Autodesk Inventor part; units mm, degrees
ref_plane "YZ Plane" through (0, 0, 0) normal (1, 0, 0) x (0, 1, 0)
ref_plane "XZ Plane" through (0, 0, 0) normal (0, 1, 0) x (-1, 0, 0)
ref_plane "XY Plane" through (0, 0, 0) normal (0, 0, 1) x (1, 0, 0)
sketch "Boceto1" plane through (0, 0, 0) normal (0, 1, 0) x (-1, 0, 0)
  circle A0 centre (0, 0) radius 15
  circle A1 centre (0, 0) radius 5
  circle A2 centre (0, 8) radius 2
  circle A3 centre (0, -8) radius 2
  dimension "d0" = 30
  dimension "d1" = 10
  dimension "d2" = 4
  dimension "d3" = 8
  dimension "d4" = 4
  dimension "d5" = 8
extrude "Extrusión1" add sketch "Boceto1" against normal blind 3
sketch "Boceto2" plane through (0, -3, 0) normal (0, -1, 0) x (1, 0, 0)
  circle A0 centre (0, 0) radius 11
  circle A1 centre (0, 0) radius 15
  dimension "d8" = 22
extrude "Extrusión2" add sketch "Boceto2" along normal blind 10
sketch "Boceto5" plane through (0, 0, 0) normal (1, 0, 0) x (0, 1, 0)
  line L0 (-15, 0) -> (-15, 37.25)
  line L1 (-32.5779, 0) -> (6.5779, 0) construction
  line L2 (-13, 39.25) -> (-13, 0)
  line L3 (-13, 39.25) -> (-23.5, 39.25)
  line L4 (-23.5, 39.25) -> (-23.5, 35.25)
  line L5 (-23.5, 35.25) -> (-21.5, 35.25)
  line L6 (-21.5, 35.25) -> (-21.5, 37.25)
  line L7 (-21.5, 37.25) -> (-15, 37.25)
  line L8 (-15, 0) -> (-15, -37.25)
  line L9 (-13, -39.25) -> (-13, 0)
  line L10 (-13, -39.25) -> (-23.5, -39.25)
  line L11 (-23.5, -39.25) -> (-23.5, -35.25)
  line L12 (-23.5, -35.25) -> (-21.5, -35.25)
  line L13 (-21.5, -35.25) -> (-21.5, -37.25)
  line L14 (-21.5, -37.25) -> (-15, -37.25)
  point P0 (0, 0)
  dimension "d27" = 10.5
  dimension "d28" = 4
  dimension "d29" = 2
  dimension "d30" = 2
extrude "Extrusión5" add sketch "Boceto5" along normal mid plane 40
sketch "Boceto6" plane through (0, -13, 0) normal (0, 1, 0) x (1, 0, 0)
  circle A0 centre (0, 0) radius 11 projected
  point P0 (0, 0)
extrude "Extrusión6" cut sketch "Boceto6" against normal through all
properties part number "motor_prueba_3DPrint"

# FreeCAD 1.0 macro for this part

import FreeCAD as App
import Part
import Sketcher
Q = App.Units.Quantity


def add_polygon(sketch, points):
    """Adds a closed chain of lines whose ends are joined by coincident constraints."""
    first, n = sketch.GeometryCount, len(points)
    for a, b in zip(points, points[1:] + points[:1]):
        sketch.addGeometry(Part.LineSegment(App.Vector(*a, 0), App.Vector(*b, 0)), False)
    for i in range(n):
        sketch.addConstraint(Sketcher.Constraint("Coincident", first + i, 2, first + (i + 1) % n, 1))

doc = App.newDocument("Part")
body = doc.addObject("PartDesign::Body", "Body")

# Sketch on XZ plane
sketch1 = body.newObject("Sketcher::SketchObject", "Sketch")
sketch1.AttachmentSupport = (doc.getObject("XZ_Plane"), [""])
sketch1.MapMode = "FlatFace"
sketch1.addGeometry([
    Part.Circle(App.Vector(0, 0, 0), App.Vector(0, 0, 1), 15),
    Part.Circle(App.Vector(0, -8, 0), App.Vector(0, 0, 1), 2),
    Part.Circle(App.Vector(0, 0, 0), App.Vector(0, 0, 1), 5),
    Part.Circle(App.Vector(0, 8, 0), App.Vector(0, 0, 1), 2),
], False)
sketch1.addConstraint([
    Sketcher.Constraint("Coincident", 0, 3, -1, 1),
    Sketcher.Constraint("Coincident", 2, 3, -1, 1),
    Sketcher.Constraint("Equal", 1, 3),
    Sketcher.Constraint("Symmetric", 1, 3, 3, 3, -1, 1),
    Sketcher.Constraint("PointOnObject", 1, 3, -2),
    Sketcher.Constraint("Diameter", 0, Q("30 mm")),
    Sketcher.Constraint("Diameter", 1, Q("4 mm")),
    Sketcher.Constraint("Diameter", 2, Q("10 mm")),
    Sketcher.Constraint("DistanceY", 1, 3, -1, 1, Q("8 mm")),
])
pad1 = body.newObject("PartDesign::Pad", "Pad")
pad1.Profile = sketch1
pad1.Length = 3

# Sketch on XZ plane
sketch2 = body.newObject("Sketcher::SketchObject", "Sketch001")
sketch2.AttachmentSupport = (doc.getObject("XZ_Plane"), [""])
sketch2.MapMode = "FlatFace"
sketch2.AttachmentOffset = App.Placement(App.Vector(0, 0, 3), App.Rotation())
sketch2.addGeometry([
    Part.Circle(App.Vector(0, 0, 0), App.Vector(0, 0, 1), 15),
    Part.Circle(App.Vector(0, 0, 0), App.Vector(0, 0, 1), 11),
], False)
sketch2.addConstraint([
    Sketcher.Constraint("Coincident", 0, 3, -1, 1),
    Sketcher.Constraint("Coincident", 1, 3, -1, 1),
    Sketcher.Constraint("Diameter", 1, Q("22 mm")),
    Sketcher.Constraint("Diameter", 0, Q("30 mm")),
])
pad2 = body.newObject("PartDesign::Pad", "Pad001")
pad2.Profile = sketch2
pad2.Length = 10

# Sketch on YZ plane
sketch3 = body.newObject("Sketcher::SketchObject", "Sketch002")
sketch3.AttachmentSupport = (doc.getObject("YZ_Plane"), [""])
sketch3.MapMode = "FlatFace"
add_polygon(sketch3, [(-15, 37.2), (-15, -37.2), (-21.5, -37.2), (-21.5, -35.2), (-23.5, -35.2), (-23.5, -39.2), (-13, -39.2), (-13, 39.2), (-23.5, 39.2), (-23.5, 35.2), (-21.5, 35.2), (-21.5, 37.2)])  # lines 0-11
sketch3.addConstraint([
    Sketcher.Constraint("Vertical", 0),
    Sketcher.Constraint("Horizontal", 1),
    Sketcher.Constraint("Vertical", 2),
    Sketcher.Constraint("Horizontal", 3),
    Sketcher.Constraint("Vertical", 4),
    Sketcher.Constraint("Horizontal", 5),
    Sketcher.Constraint("Vertical", 6),
    Sketcher.Constraint("Horizontal", 7),
    Sketcher.Constraint("Vertical", 8),
    Sketcher.Constraint("Horizontal", 9),
    Sketcher.Constraint("Vertical", 10),
    Sketcher.Constraint("Horizontal", 11),
    Sketcher.Constraint("Symmetric", 4, 2, 7, 2, -1),
    Sketcher.Constraint("Symmetric", 2, 2, 9, 2, -1),
    Sketcher.Constraint("Equal", 9, 2),
    Sketcher.Constraint("Equal", 2, 10),
    Sketcher.Constraint("DistanceX", 3, 2, 3, 1, Q("2 mm")),
    Sketcher.Constraint("DistanceY", 4, 2, 4, 1, Q("4 mm")),
    Sketcher.Constraint("DistanceX", 5, 1, 5, 2, Q("10.5 mm")),
    Sketcher.Constraint("DistanceX", 0, 2, 5, 2, Q("2 mm")),
    Sketcher.Constraint("DistanceY", 0, 2, 0, 1, Q("74.5 mm")),
    Sketcher.Constraint("DistanceX", 0, 2, -1, 1, Q("15 mm")),
])
pad3 = body.newObject("PartDesign::Pad", "Pad002")
pad3.Profile = sketch3
pad3.Length = 40
pad3.Midplane = True

# Sketch on XZ plane
sketch4 = body.newObject("Sketcher::SketchObject", "Sketch003")
sketch4.AttachmentSupport = (doc.getObject("XZ_Plane"), [""])
sketch4.MapMode = "FlatFace"
sketch4.AttachmentOffset = App.Placement(App.Vector(0, 0, 13), App.Rotation())
sketch4.addGeometry(Part.Circle(App.Vector(0, 0, 0), App.Vector(0, 0, 1), 11), False)
sketch4.addConstraint([
    Sketcher.Constraint("Coincident", 0, 3, -1, 1),
    Sketcher.Constraint("Diameter", 0, Q("22 mm")),
])
pocket1 = body.newObject("PartDesign::Pocket", "Pocket")
pocket1.Profile = sketch4
pocket1.Type = "ThroughAll"
pocket1.Reversed = True

doc.recompute()
